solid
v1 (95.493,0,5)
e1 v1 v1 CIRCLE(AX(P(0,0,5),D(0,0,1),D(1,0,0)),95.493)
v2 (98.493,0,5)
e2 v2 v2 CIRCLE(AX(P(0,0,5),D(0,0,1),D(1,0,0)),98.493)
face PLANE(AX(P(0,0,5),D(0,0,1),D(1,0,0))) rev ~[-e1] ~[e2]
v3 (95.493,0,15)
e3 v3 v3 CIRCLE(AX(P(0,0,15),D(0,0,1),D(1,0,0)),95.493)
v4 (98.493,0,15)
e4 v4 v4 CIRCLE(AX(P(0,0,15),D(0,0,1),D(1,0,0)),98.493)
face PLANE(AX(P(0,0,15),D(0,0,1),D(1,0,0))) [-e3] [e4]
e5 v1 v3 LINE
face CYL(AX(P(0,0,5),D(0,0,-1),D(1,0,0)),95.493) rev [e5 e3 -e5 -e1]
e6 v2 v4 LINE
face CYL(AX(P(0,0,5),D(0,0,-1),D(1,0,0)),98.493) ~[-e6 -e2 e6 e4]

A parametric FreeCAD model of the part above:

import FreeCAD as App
import Part
import Sketcher

V = App.Vector

doc = App.newDocument("Part")
body = doc.addObject("PartDesign::Body", "Body")

# Sketch on XY plane
sketch1 = doc.addObject("Sketcher::SketchObject", "Sketch")
body.addObject(sketch1)
sketch1.AttachmentSupport = (doc.XY_Plane, [""])
sketch1.MapMode = "FlatFace"
sketch1.AttachmentOffset = App.Placement(V(0, 0, 5), App.Rotation())
sketch1.addGeometry([
    Part.Circle(V(0, 0, 0), V(0, 0, 1), 98),
    Part.Circle(V(0, 0, 0), V(0, 0, 1), 95),
], False)
sketch1.addConstraint([
    Sketcher.Constraint("Coincident", 0, 3, -1, 1),
    Sketcher.Constraint("Coincident", 1, 3, -1, 1),
    Sketcher.Constraint("Diameter", 1, 190.986),
    Sketcher.Constraint("Diameter", 0, 196.986),
])
pad1 = doc.addObject("PartDesign::Pad", "Pad")
body.addObject(pad1)
pad1.Profile = sketch1
pad1.Length = 10

doc.recompute()
